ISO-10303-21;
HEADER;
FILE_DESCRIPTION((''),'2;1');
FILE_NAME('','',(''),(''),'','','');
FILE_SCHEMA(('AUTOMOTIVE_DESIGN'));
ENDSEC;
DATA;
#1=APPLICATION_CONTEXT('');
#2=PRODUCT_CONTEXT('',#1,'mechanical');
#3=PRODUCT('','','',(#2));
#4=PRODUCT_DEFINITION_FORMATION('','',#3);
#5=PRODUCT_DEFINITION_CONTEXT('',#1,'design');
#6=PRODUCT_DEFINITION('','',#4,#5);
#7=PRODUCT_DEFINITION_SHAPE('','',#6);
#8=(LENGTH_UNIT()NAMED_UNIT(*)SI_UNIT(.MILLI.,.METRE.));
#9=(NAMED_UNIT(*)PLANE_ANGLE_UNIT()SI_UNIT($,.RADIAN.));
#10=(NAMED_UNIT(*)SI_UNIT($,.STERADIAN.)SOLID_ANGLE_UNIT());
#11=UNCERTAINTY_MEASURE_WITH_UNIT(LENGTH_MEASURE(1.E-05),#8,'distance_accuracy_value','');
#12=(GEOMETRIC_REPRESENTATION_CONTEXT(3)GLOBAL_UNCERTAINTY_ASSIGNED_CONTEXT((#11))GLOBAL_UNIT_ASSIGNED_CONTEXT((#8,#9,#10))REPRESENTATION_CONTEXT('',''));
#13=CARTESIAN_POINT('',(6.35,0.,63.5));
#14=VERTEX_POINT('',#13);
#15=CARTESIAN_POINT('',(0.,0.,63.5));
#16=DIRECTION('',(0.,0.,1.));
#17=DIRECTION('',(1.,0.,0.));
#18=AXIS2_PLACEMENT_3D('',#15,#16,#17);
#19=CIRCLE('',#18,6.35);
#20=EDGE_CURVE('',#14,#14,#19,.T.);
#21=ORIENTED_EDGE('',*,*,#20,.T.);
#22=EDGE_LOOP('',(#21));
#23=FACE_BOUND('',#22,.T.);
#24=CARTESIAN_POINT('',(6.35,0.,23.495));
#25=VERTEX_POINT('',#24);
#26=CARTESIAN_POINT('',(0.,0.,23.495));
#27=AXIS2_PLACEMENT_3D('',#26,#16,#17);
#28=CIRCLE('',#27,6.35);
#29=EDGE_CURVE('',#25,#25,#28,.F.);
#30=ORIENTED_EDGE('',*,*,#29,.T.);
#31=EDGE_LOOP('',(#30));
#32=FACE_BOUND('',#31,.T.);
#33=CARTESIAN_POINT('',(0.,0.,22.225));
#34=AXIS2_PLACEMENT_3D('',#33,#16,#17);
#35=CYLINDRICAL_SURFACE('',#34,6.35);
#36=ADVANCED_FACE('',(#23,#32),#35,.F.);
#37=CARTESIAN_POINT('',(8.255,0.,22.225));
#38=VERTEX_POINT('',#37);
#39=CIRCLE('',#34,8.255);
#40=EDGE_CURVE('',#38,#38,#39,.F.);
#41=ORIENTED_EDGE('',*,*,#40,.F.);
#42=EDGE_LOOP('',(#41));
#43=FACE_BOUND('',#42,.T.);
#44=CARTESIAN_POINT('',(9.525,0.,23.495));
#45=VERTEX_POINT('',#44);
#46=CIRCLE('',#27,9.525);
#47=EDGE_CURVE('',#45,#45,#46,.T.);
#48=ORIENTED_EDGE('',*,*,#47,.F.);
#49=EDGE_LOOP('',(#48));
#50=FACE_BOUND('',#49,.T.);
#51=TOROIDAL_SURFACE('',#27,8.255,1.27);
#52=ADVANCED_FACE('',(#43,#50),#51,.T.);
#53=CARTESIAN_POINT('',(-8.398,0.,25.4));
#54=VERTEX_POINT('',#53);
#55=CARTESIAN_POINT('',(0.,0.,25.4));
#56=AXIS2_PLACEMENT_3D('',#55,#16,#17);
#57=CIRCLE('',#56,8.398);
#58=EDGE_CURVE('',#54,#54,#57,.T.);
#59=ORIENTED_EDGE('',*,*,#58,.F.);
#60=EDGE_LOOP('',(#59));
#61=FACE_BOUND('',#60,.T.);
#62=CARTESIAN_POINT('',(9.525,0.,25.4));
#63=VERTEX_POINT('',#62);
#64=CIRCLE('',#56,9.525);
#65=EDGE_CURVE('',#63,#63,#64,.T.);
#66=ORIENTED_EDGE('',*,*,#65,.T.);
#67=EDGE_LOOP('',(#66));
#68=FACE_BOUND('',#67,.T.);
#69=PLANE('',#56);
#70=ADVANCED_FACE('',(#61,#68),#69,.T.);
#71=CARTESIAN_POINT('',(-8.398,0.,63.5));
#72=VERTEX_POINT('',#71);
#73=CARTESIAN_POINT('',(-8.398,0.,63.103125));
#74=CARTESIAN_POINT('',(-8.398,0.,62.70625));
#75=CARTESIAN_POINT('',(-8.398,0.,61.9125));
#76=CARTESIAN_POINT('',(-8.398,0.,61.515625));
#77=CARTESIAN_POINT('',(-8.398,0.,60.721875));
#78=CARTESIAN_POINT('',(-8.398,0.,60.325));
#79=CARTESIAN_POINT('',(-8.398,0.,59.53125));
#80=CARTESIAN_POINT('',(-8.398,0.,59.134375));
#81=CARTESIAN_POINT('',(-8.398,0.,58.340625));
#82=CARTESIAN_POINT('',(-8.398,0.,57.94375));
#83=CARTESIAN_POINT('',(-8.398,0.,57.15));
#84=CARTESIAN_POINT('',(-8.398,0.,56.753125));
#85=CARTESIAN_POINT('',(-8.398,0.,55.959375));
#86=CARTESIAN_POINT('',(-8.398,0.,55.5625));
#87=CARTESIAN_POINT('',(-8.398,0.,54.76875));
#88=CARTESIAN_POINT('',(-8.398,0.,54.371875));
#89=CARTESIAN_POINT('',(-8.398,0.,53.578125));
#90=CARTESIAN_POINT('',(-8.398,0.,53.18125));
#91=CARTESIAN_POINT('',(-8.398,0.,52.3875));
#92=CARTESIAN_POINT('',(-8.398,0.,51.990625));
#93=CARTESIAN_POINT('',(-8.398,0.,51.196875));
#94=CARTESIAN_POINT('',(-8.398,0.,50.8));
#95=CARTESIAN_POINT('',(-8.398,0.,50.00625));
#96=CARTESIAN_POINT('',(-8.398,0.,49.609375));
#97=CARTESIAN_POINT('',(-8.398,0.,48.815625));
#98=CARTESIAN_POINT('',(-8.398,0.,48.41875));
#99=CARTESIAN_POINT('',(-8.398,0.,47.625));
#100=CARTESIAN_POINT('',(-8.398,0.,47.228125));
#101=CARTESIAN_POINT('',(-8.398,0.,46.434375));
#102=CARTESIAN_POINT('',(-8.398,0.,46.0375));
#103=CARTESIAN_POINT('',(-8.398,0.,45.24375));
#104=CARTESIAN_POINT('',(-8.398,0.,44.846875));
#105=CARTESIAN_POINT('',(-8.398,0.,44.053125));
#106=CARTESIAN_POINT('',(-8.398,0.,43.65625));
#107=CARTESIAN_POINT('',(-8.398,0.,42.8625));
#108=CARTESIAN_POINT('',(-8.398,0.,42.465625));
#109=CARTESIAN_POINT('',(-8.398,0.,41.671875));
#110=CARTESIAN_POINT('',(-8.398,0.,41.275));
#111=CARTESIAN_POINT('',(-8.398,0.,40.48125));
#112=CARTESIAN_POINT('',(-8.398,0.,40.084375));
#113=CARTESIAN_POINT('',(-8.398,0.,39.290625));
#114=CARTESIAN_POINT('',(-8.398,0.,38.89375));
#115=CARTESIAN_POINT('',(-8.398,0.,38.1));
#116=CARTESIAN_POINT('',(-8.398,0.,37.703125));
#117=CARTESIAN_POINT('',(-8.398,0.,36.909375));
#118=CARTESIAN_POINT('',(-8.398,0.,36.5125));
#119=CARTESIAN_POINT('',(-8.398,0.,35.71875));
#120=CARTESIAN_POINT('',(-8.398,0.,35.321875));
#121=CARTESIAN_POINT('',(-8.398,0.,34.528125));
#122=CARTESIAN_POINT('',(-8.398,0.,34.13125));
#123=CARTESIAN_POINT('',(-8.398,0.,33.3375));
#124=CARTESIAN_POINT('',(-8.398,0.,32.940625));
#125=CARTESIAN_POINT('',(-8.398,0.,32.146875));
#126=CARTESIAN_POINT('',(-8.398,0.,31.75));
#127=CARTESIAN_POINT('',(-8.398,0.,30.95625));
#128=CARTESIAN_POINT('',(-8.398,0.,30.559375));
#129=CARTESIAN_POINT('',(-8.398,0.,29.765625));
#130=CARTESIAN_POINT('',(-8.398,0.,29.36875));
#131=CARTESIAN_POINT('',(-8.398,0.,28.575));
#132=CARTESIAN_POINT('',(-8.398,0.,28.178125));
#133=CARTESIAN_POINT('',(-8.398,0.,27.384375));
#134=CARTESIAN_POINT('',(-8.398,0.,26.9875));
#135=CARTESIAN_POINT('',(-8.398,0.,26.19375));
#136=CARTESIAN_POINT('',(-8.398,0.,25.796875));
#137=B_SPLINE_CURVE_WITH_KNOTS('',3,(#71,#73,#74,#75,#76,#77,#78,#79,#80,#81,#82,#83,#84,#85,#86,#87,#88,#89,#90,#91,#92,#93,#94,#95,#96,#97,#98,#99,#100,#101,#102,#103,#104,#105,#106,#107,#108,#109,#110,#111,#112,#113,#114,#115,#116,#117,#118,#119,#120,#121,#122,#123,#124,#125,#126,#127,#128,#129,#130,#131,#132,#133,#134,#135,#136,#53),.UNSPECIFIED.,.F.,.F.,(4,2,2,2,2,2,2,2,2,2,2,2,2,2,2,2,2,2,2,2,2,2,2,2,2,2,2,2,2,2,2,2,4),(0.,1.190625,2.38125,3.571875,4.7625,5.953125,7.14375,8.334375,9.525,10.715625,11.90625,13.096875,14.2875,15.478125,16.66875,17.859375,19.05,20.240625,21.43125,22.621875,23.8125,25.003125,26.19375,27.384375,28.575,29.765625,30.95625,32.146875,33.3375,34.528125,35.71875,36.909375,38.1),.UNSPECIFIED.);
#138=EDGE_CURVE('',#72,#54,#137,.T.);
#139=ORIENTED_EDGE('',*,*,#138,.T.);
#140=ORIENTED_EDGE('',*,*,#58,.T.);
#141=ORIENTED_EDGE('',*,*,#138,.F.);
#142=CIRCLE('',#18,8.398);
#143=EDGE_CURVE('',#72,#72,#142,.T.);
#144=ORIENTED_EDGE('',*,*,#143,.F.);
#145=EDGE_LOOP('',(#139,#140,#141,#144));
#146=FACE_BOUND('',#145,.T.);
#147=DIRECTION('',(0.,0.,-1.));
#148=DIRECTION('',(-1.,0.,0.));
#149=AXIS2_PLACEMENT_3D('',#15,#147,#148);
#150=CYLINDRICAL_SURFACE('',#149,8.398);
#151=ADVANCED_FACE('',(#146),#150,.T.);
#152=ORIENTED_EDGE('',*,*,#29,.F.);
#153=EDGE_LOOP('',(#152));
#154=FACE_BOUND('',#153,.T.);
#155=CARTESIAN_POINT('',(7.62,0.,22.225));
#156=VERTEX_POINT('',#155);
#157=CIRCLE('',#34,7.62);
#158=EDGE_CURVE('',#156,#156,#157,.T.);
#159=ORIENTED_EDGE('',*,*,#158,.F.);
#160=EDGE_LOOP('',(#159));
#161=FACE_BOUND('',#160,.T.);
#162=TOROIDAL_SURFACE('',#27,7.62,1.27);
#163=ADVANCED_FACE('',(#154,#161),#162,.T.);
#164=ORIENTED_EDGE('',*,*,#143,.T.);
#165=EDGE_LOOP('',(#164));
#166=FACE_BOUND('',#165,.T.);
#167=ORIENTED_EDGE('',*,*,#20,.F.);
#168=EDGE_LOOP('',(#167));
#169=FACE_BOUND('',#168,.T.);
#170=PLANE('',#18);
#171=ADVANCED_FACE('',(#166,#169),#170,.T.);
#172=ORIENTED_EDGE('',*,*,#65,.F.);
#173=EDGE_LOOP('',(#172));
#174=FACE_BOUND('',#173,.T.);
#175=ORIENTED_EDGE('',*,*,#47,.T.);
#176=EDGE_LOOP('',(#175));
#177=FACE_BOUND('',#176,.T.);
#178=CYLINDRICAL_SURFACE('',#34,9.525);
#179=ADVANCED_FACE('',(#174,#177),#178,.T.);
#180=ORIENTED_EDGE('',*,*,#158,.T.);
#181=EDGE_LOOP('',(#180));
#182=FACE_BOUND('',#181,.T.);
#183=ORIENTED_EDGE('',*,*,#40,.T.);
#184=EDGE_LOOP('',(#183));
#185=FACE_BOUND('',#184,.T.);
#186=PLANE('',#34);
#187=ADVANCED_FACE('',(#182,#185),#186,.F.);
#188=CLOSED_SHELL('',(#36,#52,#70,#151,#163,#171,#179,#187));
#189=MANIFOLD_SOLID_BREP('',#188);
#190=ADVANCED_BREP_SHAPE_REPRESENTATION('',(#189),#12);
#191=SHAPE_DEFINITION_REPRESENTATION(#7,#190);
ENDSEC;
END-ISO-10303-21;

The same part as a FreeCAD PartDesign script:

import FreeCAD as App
import Part
import Sketcher

V = App.Vector
Q = App.Units.Quantity


def edges_at(feature, points):
    """Names of the edges that pass closest to the given points."""
    edges = feature.Shape.Edges
    near = lambda p: min(range(len(edges)), key=lambda i: edges[i].distToShape(Part.Vertex(*p))[0])
    return sorted({f"Edge{near(p) + 1}" for p in points})

doc = App.newDocument("Part")
params = doc.addObject("Spreadsheet::Sheet", "Params")
for row, (alias, value) in enumerate([
    ("pad1_length", "1.5 in"),
    ("sketch2_diameter", "0.75 in"),
    ("pad2_length", "0.125 in"),
    ("sketch3_diameter", "0.5 in"),
    ("pad3_length", "41.411153 mm"),
    ("pad3_length2", "41.411153 mm"),
    ("fillet_radius", "0.05 in"),
], start=1):
    params.set(f"A{row}", alias)
    params.set(f"B{row}", "=" + value)
    params.setAlias(f"B{row}", alias)

body = doc.addObject("PartDesign::Body", "Body")

# Sketch on XY plane
sketch1 = doc.addObject("Sketcher::SketchObject", "Sketch")
body.addObject(sketch1)
sketch1.AttachmentSupport = (doc.XY_Plane, [""])
sketch1.MapMode = "FlatFace"
sketch1.AttachmentOffset = App.Placement(V(0, 0, 1 * 25.4), App.Rotation())
sketch1.addGeometry(Part.Circle(V(0, 0, 0), V(0, 0, 1), 8), False)
sketch1.addConstraint([
    Sketcher.Constraint("Coincident", 0, 3, -1, 1),
    Sketcher.Constraint("Diameter", 0, Q("16.796 mm")),
])
pad1 = doc.addObject("PartDesign::Pad", "Pad")
body.addObject(pad1)
pad1.Profile = sketch1
pad1.setExpression("Length", "Params.pad1_length")
body2 = doc.addObject("PartDesign::Body", "Body001")

# Sketch on XY plane
sketch2 = doc.addObject("Sketcher::SketchObject", "Sketch001")
body2.addObject(sketch2)
sketch2.AttachmentSupport = (doc.getObject("XY_Plane001"), [""])
sketch2.MapMode = "FlatFace"
sketch2.AttachmentOffset = App.Placement(V(0, 0, 1 * 25.4), App.Rotation())
sketch2.addGeometry(Part.Circle(V(0, 0, 0), V(0, 0, 1), 10), False)
sketch2.addConstraint([
    Sketcher.Constraint("Coincident", 0, 3, -1, 1),
    Sketcher.Constraint("Diameter", 0, Q("0.75 in")),
])
sketch2.setExpression("Constraints[1]", "Params.sketch2_diameter")
pad2 = doc.addObject("PartDesign::Pad", "Pad001")
body2.addObject(pad2)
pad2.Profile = sketch2
pad2.setExpression("Length", "Params.pad2_length")
pad2.Reversed = True
body3 = doc.addObject("PartDesign::Body", "Body002")

# Sketch on XY plane
sketch3 = doc.addObject("Sketcher::SketchObject", "Sketch002")
body3.addObject(sketch3)
sketch3.AttachmentSupport = (doc.getObject("XY_Plane002"), [""])
sketch3.MapMode = "FlatFace"
sketch3.AttachmentOffset = App.Placement(V(0, 0, 1 * 25.4), App.Rotation())
sketch3.addGeometry(Part.Circle(V(0, 0, 0), V(0, 0, 1), 6), False)
sketch3.addConstraint([
    Sketcher.Constraint("Coincident", 0, 3, -1, 1),
    Sketcher.Constraint("Diameter", 0, Q("0.5 in")),
])
sketch3.setExpression("Constraints[1]", "Params.sketch3_diameter")
pad3 = doc.addObject("PartDesign::Pad", "Pad002")
body3.addObject(pad3)
pad3.Profile = sketch3
pad3.Type = "TwoLengths"
pad3.setExpression("Length", "Params.pad3_length")
pad3.setExpression("Length2", "Params.pad3_length2")
doc.recompute()

body4 = doc.addObject("PartDesign::Body", "Body003")
body4.BaseFeature = body3
boolean = doc.addObject("PartDesign::Boolean", "Boolean")
body.addObject(boolean)
boolean.Type = "Cut"
boolean.addObjects([body4])
doc.recompute()

boolean2 = doc.addObject("PartDesign::Boolean", "Boolean001")
body2.addObject(boolean2)
boolean2.Type = "Cut"
boolean2.addObjects([body3])
doc.recompute()

boolean3 = doc.addObject("PartDesign::Boolean", "Boolean002")
body2.addObject(boolean3)
boolean3.Type = "Fuse"
boolean3.addObjects([body])
doc.recompute()

fillet = doc.addObject("PartDesign::Fillet", "Fillet")
body2.addObject(fillet)
fillet.Base = (boolean3, edges_at(boolean3, [(-6.35, 0, 22.225), (-9.525, 0, 22.225)]))
fillet.setExpression("Radius", "Params.fillet_radius")

doc.recompute()
